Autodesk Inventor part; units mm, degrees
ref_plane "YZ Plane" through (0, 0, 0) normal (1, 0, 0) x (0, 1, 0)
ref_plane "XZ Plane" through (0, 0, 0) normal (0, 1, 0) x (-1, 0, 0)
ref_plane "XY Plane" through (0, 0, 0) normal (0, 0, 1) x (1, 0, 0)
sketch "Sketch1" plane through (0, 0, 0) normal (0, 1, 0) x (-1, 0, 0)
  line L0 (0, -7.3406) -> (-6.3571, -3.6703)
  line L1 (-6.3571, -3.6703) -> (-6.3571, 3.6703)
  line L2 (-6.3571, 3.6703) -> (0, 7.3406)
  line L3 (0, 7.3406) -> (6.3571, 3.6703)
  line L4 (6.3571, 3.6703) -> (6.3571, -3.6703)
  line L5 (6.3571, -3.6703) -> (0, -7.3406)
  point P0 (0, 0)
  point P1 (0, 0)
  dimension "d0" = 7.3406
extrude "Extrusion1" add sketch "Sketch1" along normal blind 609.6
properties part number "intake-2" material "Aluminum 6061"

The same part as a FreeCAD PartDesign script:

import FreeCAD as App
import Part
import Sketcher
Q = App.Units.Quantity

doc = App.newDocument("Part")
body = doc.addObject("PartDesign::Body", "Body")

sketch1 = doc.addObject("Sketcher::SketchObject", "Sketch")
body.addObject(sketch1)
sketch1.AttachmentSupport = (doc.XZ_Plane, [""])
sketch1.MapMode = "FlatFace"
sketch1.addGeometry([
    Part.LineSegment(App.Vector(6.3571, -3.6703, 0), App.Vector(0, -7.3406, 0)),
    Part.LineSegment(App.Vector(0, -7.3406, 0), App.Vector(-6.3571, -3.6703, 0)),
    Part.LineSegment(App.Vector(-6.3571, -3.6703, 0), App.Vector(-6.3571, 3.6703, 0)),
    Part.LineSegment(App.Vector(-6.3571, 3.6703, 0), App.Vector(0, 7.3406, 0)),
    Part.LineSegment(App.Vector(0, 7.3406, 0), App.Vector(6.3571, 3.6703, 0)),
    Part.LineSegment(App.Vector(6.3571, 3.6703, 0), App.Vector(6.3571, -3.6703, 0)),
], False)
sketch1.addConstraint([
    Sketcher.Constraint("Coincident", 0, 2, 1, 1),
    Sketcher.Constraint("Coincident", 1, 2, 2, 1),
    Sketcher.Constraint("Coincident", 2, 2, 3, 1),
    Sketcher.Constraint("Coincident", 3, 2, 4, 1),
    Sketcher.Constraint("Coincident", 4, 2, 5, 1),
    Sketcher.Constraint("Coincident", 5, 2, 0, 1),
    Sketcher.Constraint("Vertical", 2),
    Sketcher.Constraint("Vertical", 5),
    Sketcher.Constraint("Symmetric", 0, 2, 3, 2, -1, 1),
    Sketcher.Constraint("Symmetric", 1, 2, 4, 2, -1, 1),
    Sketcher.Constraint("PointOnObject", 0, 2, -2),
    Sketcher.Constraint("Parallel", 0, 3),
    Sketcher.Constraint("Horizontal", 2, 2, 4, 2),
    Sketcher.Constraint("DistanceY", 2, 1, 2, 2, Q("0.289 in")),
    Sketcher.Constraint("Distance", 0, Q("0.289 in")),
    Sketcher.Constraint("DistanceY", 0, 2, -1, 1, Q("0.289 in")),
])
pad1 = doc.addObject("PartDesign::Pad", "Pad")
body.addObject(pad1)
pad1.Profile = sketch1
pad1.Length = Q("24 in")
pad1.Reversed = True

doc.recompute()
